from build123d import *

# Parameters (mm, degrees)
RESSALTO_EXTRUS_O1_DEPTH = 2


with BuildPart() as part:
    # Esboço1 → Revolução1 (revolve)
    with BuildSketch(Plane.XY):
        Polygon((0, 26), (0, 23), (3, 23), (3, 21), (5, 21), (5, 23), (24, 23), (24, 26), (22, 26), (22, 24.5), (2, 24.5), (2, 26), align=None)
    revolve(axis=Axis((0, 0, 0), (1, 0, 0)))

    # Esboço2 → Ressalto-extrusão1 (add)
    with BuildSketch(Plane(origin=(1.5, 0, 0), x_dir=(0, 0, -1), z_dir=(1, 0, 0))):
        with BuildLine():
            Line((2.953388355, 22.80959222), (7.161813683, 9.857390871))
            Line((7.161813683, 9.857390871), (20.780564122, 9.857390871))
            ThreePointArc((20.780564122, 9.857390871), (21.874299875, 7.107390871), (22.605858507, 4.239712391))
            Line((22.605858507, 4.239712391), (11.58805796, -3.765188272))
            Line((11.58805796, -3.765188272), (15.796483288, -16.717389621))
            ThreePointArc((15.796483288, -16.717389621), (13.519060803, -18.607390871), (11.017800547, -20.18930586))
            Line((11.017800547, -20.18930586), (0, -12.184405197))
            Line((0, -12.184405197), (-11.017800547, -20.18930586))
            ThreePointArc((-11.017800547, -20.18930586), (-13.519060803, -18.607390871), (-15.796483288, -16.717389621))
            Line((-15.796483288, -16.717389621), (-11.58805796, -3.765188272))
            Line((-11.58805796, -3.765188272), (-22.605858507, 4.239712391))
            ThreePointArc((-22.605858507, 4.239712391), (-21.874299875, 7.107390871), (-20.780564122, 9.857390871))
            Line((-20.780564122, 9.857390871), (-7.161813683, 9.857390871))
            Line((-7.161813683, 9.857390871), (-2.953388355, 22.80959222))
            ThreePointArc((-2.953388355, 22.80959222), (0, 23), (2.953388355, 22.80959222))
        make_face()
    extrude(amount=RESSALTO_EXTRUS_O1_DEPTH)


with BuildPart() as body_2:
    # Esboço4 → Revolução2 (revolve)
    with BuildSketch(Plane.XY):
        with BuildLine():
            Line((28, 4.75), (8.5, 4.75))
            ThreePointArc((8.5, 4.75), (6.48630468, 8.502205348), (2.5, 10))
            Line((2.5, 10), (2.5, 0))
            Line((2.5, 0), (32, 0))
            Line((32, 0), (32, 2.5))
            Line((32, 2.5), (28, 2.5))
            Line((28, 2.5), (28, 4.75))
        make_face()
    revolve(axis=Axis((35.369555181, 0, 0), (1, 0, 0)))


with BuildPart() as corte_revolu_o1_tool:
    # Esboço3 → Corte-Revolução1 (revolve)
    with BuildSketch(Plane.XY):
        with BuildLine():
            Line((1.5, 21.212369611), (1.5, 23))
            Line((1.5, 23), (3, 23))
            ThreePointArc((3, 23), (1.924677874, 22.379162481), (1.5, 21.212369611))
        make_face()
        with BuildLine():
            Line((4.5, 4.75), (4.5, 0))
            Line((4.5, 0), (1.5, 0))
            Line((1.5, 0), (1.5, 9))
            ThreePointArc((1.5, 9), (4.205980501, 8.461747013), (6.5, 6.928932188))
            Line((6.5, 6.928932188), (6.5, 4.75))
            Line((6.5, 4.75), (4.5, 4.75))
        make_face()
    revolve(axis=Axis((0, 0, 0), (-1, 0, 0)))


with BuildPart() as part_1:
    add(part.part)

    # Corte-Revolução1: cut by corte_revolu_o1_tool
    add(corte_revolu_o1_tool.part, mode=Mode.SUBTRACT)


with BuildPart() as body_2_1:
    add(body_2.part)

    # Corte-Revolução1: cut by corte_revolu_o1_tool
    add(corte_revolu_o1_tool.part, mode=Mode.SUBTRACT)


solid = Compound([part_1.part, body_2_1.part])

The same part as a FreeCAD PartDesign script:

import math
import FreeCAD as App
import Part
import Sketcher
Q = App.Units.Quantity


def add_polygon(sketch, points):
    """Adds a closed chain of lines whose ends are joined by coincident constraints."""
    first, n = sketch.GeometryCount, len(points)
    for a, b in zip(points, points[1:] + points[:1]):
        sketch.addGeometry(Part.LineSegment(App.Vector(*a, 0), App.Vector(*b, 0)), False)
    for i in range(n):
        sketch.addConstraint(Sketcher.Constraint("Coincident", first + i, 2, first + (i + 1) % n, 1))

doc = App.newDocument("Part")
body = doc.addObject("PartDesign::Body", "Body")

# Sketch on XY plane
sketch1 = body.newObject("Sketcher::SketchObject", "Sketch")
sketch1.AttachmentSupport = (doc.getObject("XY_Plane"), [""])
sketch1.MapMode = "FlatFace"
add_polygon(sketch1, [(0, 26), (0, 23), (3, 23), (3, 21), (5, 21), (5, 23), (24, 23), (24, 26), (22, 26), (22, 24.5), (2, 24.5), (2, 26)])  # lines 0-11
sketch1.addConstraint([
    Sketcher.Constraint("Vertical", 0),
    Sketcher.Constraint("Horizontal", 1),
    Sketcher.Constraint("Vertical", 2),
    Sketcher.Constraint("Horizontal", 3),
    Sketcher.Constraint("Vertical", 4),
    Sketcher.Constraint("Horizontal", 5),
    Sketcher.Constraint("Vertical", 6),
    Sketcher.Constraint("Horizontal", 7),
    Sketcher.Constraint("Vertical", 8),
    Sketcher.Constraint("Horizontal", 9),
    Sketcher.Constraint("Vertical", 10),
    Sketcher.Constraint("Horizontal", 11),
    Sketcher.Constraint("PointOnObject", 0, 2, -2),
    Sketcher.Constraint("Horizontal", 1, 2, 4, 2),
    Sketcher.Constraint("Horizontal", 7, 2, 10, 2),
    Sketcher.Constraint("Equal", 3, 7),
    Sketcher.Constraint("Equal", 7, 11),
    Sketcher.Constraint("Equal", 1, 0),
    Sketcher.Constraint("Equal", 11, 2),
    Sketcher.Constraint("DistanceX", 1, 1, 1, 2, Q("3 mm")),
    Sketcher.Constraint("DistanceX", 3, 1, 3, 2, Q("2 mm")),
    Sketcher.Constraint("DistanceX", 5, 1, 5, 2, Q("19 mm")),
    Sketcher.Constraint("DistanceY", 8, 2, 8, 1, Q("1.5 mm")),
    Sketcher.Constraint("DistanceY", -1, 1, 0, 2, Q("23 mm")),
])
revolution = body.newObject("PartDesign::Revolution", "Revolution")
revolution.Profile = sketch1
revolution.ReferenceAxis = (sketch1, ["H_Axis"])
revolution.Angle = 360

# Sketch on YZ plane
sketch2 = body.newObject("Sketcher::SketchObject", "Sketch001")
sketch2.AttachmentSupport = (doc.getObject("YZ_Plane"), [""])
sketch2.MapMode = "FlatFace"
sketch2.AttachmentOffset = App.Placement(App.Vector(0, 0, 1.5), App.Rotation())
sketch2.addGeometry([
    Part.LineSegment(App.Vector(10, -7, 0), App.Vector(23, -3, 0)),  # 0
    Part.ArcOfCircle(Part.Circle(App.Vector(0, 0, 0), App.Vector(0, 0, 1), 23), math.radians(-7.38), math.radians(7.38)),  # 1
    Part.LineSegment(App.Vector(23, 3, 0), App.Vector(10, 7, 0)),  # 2
    Part.LineSegment(App.Vector(10, 7, 0), App.Vector(10, 21, 0)),  # 3
    Part.ArcOfCircle(Part.Circle(App.Vector(0, 0, 0), App.Vector(0, 0, 1), 23), math.radians(64.62), math.radians(79.38)),  # 4
    Part.LineSegment(App.Vector(4, 23, 0), App.Vector(-4, 12, 0)),  # 5
    Part.LineSegment(App.Vector(-4, 12, 0), App.Vector(-17, 16, 0)),  # 6
    Part.ArcOfCircle(Part.Circle(App.Vector(0, 0, 0), App.Vector(0, 0, 1), 23), math.radians(136.62), math.radians(151.38)),  # 7
    Part.LineSegment(App.Vector(-20, 11, 0), App.Vector(-12, 0, 0)),  # 8
    Part.LineSegment(App.Vector(-12, 0, 0), App.Vector(-20, -11, 0)),  # 9
    Part.ArcOfCircle(Part.Circle(App.Vector(0, 0, 0), App.Vector(0, 0, 1), 23), math.radians(-151.38), math.radians(-136.62)),  # 10
    Part.LineSegment(App.Vector(-17, -16, 0), App.Vector(-4, -12, 0)),  # 11
    Part.LineSegment(App.Vector(-4, -12, 0), App.Vector(4, -23, 0)),  # 12
    Part.ArcOfCircle(Part.Circle(App.Vector(0, 0, 0), App.Vector(0, 0, 1), 23), math.radians(-79.38), math.radians(-64.62)),  # 13
    Part.LineSegment(App.Vector(10, -21, 0), App.Vector(10, -7, 0)),  # 14
], False)
sketch2.addConstraint([
    Sketcher.Constraint("Coincident", 0, 2, 1, 1),
    Sketcher.Constraint("Coincident", 1, 2, 2, 1),
    Sketcher.Constraint("Coincident", 2, 2, 3, 1),
    Sketcher.Constraint("Coincident", 3, 2, 4, 1),
    Sketcher.Constraint("Coincident", 4, 2, 5, 1),
    Sketcher.Constraint("Coincident", 5, 2, 6, 1),
    Sketcher.Constraint("Coincident", 6, 2, 7, 1),
    Sketcher.Constraint("Coincident", 7, 2, 8, 1),
    Sketcher.Constraint("Coincident", 8, 2, 9, 1),
    Sketcher.Constraint("Coincident", 9, 2, 10, 1),
    Sketcher.Constraint("Coincident", 10, 2, 11, 1),
    Sketcher.Constraint("Coincident", 11, 2, 12, 1),
    Sketcher.Constraint("Coincident", 12, 2, 13, 1),
    Sketcher.Constraint("Coincident", 13, 2, 14, 1),
    Sketcher.Constraint("Coincident", 14, 2, 0, 1),
    Sketcher.Constraint("Vertical", 3),
    Sketcher.Constraint("Vertical", 14),
    Sketcher.Constraint("Coincident", 1, 3, -1, 1),
    Sketcher.Constraint("Coincident", 4, 3, -1, 1),
    Sketcher.Constraint("Coincident", 7, 3, -1, 1),
    Sketcher.Constraint("Coincident", 10, 3, -1, 1),
    Sketcher.Constraint("Coincident", 13, 3, -1, 1),
    Sketcher.Constraint("Equal", 1, 4),
    Sketcher.Constraint("Equal", 4, 7),
    Sketcher.Constraint("Equal", 7, 10),
    Sketcher.Constraint("Equal", 10, 13),
    Sketcher.Constraint("Symmetric", 5, 2, 11, 2, -1),
    Sketcher.Constraint("Symmetric", 2, 2, 14, 2, -1),
    Sketcher.Constraint("PointOnObject", 8, 2, -1),
    Sketcher.Constraint("Parallel", 2, 6),
    Sketcher.Constraint("Parallel", 5, 9),
    Sketcher.Constraint("Parallel", 0, 11),
    Sketcher.Constraint("Parallel", 8, 12),
    Sketcher.Constraint("Vertical", 0, 2, 1, 2),
    Sketcher.Constraint("Vertical", 7, 2, 9, 2),
    Sketcher.Constraint("Equal", 2, 5),
    Sketcher.Constraint("Equal", 5, 6),
    Sketcher.Constraint("Equal", 6, 8),
    Sketcher.Constraint("Radius", 1, Q("23 mm")),
    Sketcher.Constraint("Angle", 0, Q("18 deg")),
    Sketcher.Constraint("Angle", 5, Q("-126 deg")),
    Sketcher.Constraint("DistanceY", 3, 1, 3, 2, Q("13.61875 mm")),
    Sketcher.Constraint("DistanceY", -1, 1, 7, 2, Q("11.017801 mm")),
])
pad1 = body.newObject("PartDesign::Pad", "Pad")
pad1.Profile = sketch2
pad1.Length = 2
body2 = doc.addObject("PartDesign::Body", "Body001")

# Sketch on XY plane
sketch3 = body2.newObject("Sketcher::SketchObject", "Sketch002")
sketch3.AttachmentSupport = (doc.getObject("XY_Plane001"), [""])
sketch3.MapMode = "FlatFace"
sketch3.addGeometry([
    Part.LineSegment(App.Vector(28, 4.8, 0), App.Vector(8.5, 4.8, 0)),  # 0
    Part.ArcOfCircle(Part.Circle(App.Vector(2.5, 3.9, 0), App.Vector(0, 0, 1), 6.1), math.radians(8), math.radians(90)),  # 1
    Part.LineSegment(App.Vector(2.5, 10, 0), App.Vector(2.5, 0, 0)),  # 2
    Part.LineSegment(App.Vector(2.5, 0, 0), App.Vector(32, 0, 0)),  # 3
    Part.LineSegment(App.Vector(32, 0, 0), App.Vector(32, 2.5, 0)),  # 4
    Part.LineSegment(App.Vector(32, 2.5, 0), App.Vector(28, 2.5, 0)),  # 5
    Part.LineSegment(App.Vector(28, 2.5, 0), App.Vector(28, 4.8, 0)),  # 6
], False)
sketch3.addConstraint([
    Sketcher.Constraint("Coincident", 0, 2, 1, 1),
    Sketcher.Constraint("Coincident", 1, 2, 2, 1),
    Sketcher.Constraint("Coincident", 2, 2, 3, 1),
    Sketcher.Constraint("Coincident", 3, 2, 4, 1),
    Sketcher.Constraint("Coincident", 4, 2, 5, 1),
    Sketcher.Constraint("Coincident", 5, 2, 6, 1),
    Sketcher.Constraint("Coincident", 6, 2, 0, 1),
    Sketcher.Constraint("Horizontal", 0),
    Sketcher.Constraint("Vertical", 2),
    Sketcher.Constraint("Horizontal", 3),
    Sketcher.Constraint("Vertical", 4),
    Sketcher.Constraint("Horizontal", 5),
    Sketcher.Constraint("Vertical", 6),
    Sketcher.Constraint("PointOnObject", 2, 2, -1),
    Sketcher.Constraint("DistanceX", 5, 2, 5, 1, Q("4 mm")),
    Sketcher.Constraint("DistanceY", 2, 2, 2, 1, Q("10 mm")),
    Sketcher.Constraint("DistanceX", 0, 2, 0, 1, Q("19.5 mm")),
    Sketcher.Constraint("DistanceX", 3, 1, 3, 2, Q("29.5 mm")),
    Sketcher.Constraint("DistanceY", 4, 1, 4, 2, Q("2.5 mm")),
    Sketcher.Constraint("DistanceX", -1, 1, 3, 2, Q("32 mm")),
    Sketcher.Constraint("DistanceX", 1, 3, 0, 2, Q("6 mm")),
    Sketcher.Constraint("DistanceY", 6, 1, 6, 2, Q("2.25 mm")),
])
revolution2 = body2.newObject("PartDesign::Revolution", "Revolution001")
revolution2.Profile = sketch3
revolution2.ReferenceAxis = (sketch3, ["H_Axis"])
revolution2.Angle = 360
body3 = doc.addObject("PartDesign::Body", "Body002")
body3.AllowCompound = True

# Sketch on XY plane
sketch4 = body3.newObject("Sketcher::SketchObject", "Sketch003")
sketch4.AttachmentSupport = (doc.getObject("XY_Plane002"), [""])
sketch4.MapMode = "FlatFace"
sketch4.addGeometry([
    Part.LineSegment(App.Vector(1.5, 23, 0), App.Vector(1.5, 21.2, 0)),  # 0
    Part.ArcOfCircle(Part.Circle(App.Vector(3.3, 21.2, 0), App.Vector(0, 0, 1), 1.8), math.radians(100), math.radians(180)),  # 1
    Part.LineSegment(App.Vector(3, 23, 0), App.Vector(1.5, 23, 0)),  # 2
    Part.LineSegment(App.Vector(4.5, 0, 0), App.Vector(4.5, 4.8, 0)),  # 3
    Part.LineSegment(App.Vector(4.5, 4.8, 0), App.Vector(6.5, 4.8, 0)),  # 4
    Part.LineSegment(App.Vector(6.5, 4.8, 0), App.Vector(6.5, 6.9, 0)),  # 5
    Part.ArcOfCircle(Part.Circle(App.Vector(1.5, 1.9, 0), App.Vector(0, 0, 1), 7.1), math.radians(45), math.radians(90)),  # 6
    Part.LineSegment(App.Vector(1.5, 9, 0), App.Vector(1.5, 0, 0)),  # 7
    Part.LineSegment(App.Vector(1.5, 0, 0), App.Vector(4.5, 0, 0)),  # 8
], False)
sketch4.addConstraint([
    Sketcher.Constraint("Tangent", 0, 2, 1, 2),
    Sketcher.Constraint("Coincident", 1, 1, 2, 1),
    Sketcher.Constraint("Coincident", 2, 2, 0, 1),
    Sketcher.Constraint("Coincident", 3, 2, 4, 1),
    Sketcher.Constraint("Coincident", 4, 2, 5, 1),
    Sketcher.Constraint("Coincident", 5, 2, 6, 1),
    Sketcher.Constraint("Coincident", 6, 2, 7, 1),
    Sketcher.Constraint("Coincident", 7, 2, 8, 1),
    Sketcher.Constraint("Coincident", 8, 2, 3, 1),
    Sketcher.Constraint("Vertical", 0),
    Sketcher.Constraint("Horizontal", 2),
    Sketcher.Constraint("Vertical", 3),
    Sketcher.Constraint("Horizontal", 4),
    Sketcher.Constraint("Vertical", 5),
    Sketcher.Constraint("Vertical", 7),
    Sketcher.Constraint("Horizontal", 8),
    Sketcher.Constraint("PointOnObject", 7, 2, -1),
    Sketcher.Constraint("Vertical", 6, 3, 0, 2),
    Sketcher.Constraint("Vertical", 2, 2, 6, 2),
    Sketcher.Constraint("DistanceX", 4, 1, 4, 2, Q("2 mm")),
    Sketcher.Constraint("DistanceX", 8, 1, 8, 2, Q("3 mm")),
    Sketcher.Constraint("DistanceY", 7, 2, 7, 1, Q("9 mm")),
    Sketcher.Constraint("DistanceX", 2, 2, 2, 1, Q("1.5 mm")),
    Sketcher.Constraint("DistanceX", -1, 1, 1, 1, Q("3 mm")),
    Sketcher.Constraint("DistanceY", -1, 1, 1, 1, Q("23 mm")),
    Sketcher.Constraint("DistanceY", 6, 3, 5, 2, Q("5 mm")),
    Sketcher.Constraint("DistanceY", 3, 1, 3, 2, Q("4.75 mm")),
    Sketcher.Constraint("Radius", 1, Q("1.815207 mm")),
])
revolution3 = body3.newObject("PartDesign::Revolution", "Revolution002")
revolution3.Profile = sketch4
revolution3.ReferenceAxis = (sketch4, ["H_Axis"])
revolution3.Angle = 360
doc.recompute()

body4 = doc.addObject("PartDesign::Body", "Body003")
body4.BaseFeature = body3
boolean = body.newObject("PartDesign::Boolean", "Boolean")
boolean.Type = "Cut"
boolean.addObjects([body4])
doc.recompute()

boolean2 = body2.newObject("PartDesign::Boolean", "Boolean001")
boolean2.Type = "Cut"
boolean2.addObjects([body3])

doc.recompute()
